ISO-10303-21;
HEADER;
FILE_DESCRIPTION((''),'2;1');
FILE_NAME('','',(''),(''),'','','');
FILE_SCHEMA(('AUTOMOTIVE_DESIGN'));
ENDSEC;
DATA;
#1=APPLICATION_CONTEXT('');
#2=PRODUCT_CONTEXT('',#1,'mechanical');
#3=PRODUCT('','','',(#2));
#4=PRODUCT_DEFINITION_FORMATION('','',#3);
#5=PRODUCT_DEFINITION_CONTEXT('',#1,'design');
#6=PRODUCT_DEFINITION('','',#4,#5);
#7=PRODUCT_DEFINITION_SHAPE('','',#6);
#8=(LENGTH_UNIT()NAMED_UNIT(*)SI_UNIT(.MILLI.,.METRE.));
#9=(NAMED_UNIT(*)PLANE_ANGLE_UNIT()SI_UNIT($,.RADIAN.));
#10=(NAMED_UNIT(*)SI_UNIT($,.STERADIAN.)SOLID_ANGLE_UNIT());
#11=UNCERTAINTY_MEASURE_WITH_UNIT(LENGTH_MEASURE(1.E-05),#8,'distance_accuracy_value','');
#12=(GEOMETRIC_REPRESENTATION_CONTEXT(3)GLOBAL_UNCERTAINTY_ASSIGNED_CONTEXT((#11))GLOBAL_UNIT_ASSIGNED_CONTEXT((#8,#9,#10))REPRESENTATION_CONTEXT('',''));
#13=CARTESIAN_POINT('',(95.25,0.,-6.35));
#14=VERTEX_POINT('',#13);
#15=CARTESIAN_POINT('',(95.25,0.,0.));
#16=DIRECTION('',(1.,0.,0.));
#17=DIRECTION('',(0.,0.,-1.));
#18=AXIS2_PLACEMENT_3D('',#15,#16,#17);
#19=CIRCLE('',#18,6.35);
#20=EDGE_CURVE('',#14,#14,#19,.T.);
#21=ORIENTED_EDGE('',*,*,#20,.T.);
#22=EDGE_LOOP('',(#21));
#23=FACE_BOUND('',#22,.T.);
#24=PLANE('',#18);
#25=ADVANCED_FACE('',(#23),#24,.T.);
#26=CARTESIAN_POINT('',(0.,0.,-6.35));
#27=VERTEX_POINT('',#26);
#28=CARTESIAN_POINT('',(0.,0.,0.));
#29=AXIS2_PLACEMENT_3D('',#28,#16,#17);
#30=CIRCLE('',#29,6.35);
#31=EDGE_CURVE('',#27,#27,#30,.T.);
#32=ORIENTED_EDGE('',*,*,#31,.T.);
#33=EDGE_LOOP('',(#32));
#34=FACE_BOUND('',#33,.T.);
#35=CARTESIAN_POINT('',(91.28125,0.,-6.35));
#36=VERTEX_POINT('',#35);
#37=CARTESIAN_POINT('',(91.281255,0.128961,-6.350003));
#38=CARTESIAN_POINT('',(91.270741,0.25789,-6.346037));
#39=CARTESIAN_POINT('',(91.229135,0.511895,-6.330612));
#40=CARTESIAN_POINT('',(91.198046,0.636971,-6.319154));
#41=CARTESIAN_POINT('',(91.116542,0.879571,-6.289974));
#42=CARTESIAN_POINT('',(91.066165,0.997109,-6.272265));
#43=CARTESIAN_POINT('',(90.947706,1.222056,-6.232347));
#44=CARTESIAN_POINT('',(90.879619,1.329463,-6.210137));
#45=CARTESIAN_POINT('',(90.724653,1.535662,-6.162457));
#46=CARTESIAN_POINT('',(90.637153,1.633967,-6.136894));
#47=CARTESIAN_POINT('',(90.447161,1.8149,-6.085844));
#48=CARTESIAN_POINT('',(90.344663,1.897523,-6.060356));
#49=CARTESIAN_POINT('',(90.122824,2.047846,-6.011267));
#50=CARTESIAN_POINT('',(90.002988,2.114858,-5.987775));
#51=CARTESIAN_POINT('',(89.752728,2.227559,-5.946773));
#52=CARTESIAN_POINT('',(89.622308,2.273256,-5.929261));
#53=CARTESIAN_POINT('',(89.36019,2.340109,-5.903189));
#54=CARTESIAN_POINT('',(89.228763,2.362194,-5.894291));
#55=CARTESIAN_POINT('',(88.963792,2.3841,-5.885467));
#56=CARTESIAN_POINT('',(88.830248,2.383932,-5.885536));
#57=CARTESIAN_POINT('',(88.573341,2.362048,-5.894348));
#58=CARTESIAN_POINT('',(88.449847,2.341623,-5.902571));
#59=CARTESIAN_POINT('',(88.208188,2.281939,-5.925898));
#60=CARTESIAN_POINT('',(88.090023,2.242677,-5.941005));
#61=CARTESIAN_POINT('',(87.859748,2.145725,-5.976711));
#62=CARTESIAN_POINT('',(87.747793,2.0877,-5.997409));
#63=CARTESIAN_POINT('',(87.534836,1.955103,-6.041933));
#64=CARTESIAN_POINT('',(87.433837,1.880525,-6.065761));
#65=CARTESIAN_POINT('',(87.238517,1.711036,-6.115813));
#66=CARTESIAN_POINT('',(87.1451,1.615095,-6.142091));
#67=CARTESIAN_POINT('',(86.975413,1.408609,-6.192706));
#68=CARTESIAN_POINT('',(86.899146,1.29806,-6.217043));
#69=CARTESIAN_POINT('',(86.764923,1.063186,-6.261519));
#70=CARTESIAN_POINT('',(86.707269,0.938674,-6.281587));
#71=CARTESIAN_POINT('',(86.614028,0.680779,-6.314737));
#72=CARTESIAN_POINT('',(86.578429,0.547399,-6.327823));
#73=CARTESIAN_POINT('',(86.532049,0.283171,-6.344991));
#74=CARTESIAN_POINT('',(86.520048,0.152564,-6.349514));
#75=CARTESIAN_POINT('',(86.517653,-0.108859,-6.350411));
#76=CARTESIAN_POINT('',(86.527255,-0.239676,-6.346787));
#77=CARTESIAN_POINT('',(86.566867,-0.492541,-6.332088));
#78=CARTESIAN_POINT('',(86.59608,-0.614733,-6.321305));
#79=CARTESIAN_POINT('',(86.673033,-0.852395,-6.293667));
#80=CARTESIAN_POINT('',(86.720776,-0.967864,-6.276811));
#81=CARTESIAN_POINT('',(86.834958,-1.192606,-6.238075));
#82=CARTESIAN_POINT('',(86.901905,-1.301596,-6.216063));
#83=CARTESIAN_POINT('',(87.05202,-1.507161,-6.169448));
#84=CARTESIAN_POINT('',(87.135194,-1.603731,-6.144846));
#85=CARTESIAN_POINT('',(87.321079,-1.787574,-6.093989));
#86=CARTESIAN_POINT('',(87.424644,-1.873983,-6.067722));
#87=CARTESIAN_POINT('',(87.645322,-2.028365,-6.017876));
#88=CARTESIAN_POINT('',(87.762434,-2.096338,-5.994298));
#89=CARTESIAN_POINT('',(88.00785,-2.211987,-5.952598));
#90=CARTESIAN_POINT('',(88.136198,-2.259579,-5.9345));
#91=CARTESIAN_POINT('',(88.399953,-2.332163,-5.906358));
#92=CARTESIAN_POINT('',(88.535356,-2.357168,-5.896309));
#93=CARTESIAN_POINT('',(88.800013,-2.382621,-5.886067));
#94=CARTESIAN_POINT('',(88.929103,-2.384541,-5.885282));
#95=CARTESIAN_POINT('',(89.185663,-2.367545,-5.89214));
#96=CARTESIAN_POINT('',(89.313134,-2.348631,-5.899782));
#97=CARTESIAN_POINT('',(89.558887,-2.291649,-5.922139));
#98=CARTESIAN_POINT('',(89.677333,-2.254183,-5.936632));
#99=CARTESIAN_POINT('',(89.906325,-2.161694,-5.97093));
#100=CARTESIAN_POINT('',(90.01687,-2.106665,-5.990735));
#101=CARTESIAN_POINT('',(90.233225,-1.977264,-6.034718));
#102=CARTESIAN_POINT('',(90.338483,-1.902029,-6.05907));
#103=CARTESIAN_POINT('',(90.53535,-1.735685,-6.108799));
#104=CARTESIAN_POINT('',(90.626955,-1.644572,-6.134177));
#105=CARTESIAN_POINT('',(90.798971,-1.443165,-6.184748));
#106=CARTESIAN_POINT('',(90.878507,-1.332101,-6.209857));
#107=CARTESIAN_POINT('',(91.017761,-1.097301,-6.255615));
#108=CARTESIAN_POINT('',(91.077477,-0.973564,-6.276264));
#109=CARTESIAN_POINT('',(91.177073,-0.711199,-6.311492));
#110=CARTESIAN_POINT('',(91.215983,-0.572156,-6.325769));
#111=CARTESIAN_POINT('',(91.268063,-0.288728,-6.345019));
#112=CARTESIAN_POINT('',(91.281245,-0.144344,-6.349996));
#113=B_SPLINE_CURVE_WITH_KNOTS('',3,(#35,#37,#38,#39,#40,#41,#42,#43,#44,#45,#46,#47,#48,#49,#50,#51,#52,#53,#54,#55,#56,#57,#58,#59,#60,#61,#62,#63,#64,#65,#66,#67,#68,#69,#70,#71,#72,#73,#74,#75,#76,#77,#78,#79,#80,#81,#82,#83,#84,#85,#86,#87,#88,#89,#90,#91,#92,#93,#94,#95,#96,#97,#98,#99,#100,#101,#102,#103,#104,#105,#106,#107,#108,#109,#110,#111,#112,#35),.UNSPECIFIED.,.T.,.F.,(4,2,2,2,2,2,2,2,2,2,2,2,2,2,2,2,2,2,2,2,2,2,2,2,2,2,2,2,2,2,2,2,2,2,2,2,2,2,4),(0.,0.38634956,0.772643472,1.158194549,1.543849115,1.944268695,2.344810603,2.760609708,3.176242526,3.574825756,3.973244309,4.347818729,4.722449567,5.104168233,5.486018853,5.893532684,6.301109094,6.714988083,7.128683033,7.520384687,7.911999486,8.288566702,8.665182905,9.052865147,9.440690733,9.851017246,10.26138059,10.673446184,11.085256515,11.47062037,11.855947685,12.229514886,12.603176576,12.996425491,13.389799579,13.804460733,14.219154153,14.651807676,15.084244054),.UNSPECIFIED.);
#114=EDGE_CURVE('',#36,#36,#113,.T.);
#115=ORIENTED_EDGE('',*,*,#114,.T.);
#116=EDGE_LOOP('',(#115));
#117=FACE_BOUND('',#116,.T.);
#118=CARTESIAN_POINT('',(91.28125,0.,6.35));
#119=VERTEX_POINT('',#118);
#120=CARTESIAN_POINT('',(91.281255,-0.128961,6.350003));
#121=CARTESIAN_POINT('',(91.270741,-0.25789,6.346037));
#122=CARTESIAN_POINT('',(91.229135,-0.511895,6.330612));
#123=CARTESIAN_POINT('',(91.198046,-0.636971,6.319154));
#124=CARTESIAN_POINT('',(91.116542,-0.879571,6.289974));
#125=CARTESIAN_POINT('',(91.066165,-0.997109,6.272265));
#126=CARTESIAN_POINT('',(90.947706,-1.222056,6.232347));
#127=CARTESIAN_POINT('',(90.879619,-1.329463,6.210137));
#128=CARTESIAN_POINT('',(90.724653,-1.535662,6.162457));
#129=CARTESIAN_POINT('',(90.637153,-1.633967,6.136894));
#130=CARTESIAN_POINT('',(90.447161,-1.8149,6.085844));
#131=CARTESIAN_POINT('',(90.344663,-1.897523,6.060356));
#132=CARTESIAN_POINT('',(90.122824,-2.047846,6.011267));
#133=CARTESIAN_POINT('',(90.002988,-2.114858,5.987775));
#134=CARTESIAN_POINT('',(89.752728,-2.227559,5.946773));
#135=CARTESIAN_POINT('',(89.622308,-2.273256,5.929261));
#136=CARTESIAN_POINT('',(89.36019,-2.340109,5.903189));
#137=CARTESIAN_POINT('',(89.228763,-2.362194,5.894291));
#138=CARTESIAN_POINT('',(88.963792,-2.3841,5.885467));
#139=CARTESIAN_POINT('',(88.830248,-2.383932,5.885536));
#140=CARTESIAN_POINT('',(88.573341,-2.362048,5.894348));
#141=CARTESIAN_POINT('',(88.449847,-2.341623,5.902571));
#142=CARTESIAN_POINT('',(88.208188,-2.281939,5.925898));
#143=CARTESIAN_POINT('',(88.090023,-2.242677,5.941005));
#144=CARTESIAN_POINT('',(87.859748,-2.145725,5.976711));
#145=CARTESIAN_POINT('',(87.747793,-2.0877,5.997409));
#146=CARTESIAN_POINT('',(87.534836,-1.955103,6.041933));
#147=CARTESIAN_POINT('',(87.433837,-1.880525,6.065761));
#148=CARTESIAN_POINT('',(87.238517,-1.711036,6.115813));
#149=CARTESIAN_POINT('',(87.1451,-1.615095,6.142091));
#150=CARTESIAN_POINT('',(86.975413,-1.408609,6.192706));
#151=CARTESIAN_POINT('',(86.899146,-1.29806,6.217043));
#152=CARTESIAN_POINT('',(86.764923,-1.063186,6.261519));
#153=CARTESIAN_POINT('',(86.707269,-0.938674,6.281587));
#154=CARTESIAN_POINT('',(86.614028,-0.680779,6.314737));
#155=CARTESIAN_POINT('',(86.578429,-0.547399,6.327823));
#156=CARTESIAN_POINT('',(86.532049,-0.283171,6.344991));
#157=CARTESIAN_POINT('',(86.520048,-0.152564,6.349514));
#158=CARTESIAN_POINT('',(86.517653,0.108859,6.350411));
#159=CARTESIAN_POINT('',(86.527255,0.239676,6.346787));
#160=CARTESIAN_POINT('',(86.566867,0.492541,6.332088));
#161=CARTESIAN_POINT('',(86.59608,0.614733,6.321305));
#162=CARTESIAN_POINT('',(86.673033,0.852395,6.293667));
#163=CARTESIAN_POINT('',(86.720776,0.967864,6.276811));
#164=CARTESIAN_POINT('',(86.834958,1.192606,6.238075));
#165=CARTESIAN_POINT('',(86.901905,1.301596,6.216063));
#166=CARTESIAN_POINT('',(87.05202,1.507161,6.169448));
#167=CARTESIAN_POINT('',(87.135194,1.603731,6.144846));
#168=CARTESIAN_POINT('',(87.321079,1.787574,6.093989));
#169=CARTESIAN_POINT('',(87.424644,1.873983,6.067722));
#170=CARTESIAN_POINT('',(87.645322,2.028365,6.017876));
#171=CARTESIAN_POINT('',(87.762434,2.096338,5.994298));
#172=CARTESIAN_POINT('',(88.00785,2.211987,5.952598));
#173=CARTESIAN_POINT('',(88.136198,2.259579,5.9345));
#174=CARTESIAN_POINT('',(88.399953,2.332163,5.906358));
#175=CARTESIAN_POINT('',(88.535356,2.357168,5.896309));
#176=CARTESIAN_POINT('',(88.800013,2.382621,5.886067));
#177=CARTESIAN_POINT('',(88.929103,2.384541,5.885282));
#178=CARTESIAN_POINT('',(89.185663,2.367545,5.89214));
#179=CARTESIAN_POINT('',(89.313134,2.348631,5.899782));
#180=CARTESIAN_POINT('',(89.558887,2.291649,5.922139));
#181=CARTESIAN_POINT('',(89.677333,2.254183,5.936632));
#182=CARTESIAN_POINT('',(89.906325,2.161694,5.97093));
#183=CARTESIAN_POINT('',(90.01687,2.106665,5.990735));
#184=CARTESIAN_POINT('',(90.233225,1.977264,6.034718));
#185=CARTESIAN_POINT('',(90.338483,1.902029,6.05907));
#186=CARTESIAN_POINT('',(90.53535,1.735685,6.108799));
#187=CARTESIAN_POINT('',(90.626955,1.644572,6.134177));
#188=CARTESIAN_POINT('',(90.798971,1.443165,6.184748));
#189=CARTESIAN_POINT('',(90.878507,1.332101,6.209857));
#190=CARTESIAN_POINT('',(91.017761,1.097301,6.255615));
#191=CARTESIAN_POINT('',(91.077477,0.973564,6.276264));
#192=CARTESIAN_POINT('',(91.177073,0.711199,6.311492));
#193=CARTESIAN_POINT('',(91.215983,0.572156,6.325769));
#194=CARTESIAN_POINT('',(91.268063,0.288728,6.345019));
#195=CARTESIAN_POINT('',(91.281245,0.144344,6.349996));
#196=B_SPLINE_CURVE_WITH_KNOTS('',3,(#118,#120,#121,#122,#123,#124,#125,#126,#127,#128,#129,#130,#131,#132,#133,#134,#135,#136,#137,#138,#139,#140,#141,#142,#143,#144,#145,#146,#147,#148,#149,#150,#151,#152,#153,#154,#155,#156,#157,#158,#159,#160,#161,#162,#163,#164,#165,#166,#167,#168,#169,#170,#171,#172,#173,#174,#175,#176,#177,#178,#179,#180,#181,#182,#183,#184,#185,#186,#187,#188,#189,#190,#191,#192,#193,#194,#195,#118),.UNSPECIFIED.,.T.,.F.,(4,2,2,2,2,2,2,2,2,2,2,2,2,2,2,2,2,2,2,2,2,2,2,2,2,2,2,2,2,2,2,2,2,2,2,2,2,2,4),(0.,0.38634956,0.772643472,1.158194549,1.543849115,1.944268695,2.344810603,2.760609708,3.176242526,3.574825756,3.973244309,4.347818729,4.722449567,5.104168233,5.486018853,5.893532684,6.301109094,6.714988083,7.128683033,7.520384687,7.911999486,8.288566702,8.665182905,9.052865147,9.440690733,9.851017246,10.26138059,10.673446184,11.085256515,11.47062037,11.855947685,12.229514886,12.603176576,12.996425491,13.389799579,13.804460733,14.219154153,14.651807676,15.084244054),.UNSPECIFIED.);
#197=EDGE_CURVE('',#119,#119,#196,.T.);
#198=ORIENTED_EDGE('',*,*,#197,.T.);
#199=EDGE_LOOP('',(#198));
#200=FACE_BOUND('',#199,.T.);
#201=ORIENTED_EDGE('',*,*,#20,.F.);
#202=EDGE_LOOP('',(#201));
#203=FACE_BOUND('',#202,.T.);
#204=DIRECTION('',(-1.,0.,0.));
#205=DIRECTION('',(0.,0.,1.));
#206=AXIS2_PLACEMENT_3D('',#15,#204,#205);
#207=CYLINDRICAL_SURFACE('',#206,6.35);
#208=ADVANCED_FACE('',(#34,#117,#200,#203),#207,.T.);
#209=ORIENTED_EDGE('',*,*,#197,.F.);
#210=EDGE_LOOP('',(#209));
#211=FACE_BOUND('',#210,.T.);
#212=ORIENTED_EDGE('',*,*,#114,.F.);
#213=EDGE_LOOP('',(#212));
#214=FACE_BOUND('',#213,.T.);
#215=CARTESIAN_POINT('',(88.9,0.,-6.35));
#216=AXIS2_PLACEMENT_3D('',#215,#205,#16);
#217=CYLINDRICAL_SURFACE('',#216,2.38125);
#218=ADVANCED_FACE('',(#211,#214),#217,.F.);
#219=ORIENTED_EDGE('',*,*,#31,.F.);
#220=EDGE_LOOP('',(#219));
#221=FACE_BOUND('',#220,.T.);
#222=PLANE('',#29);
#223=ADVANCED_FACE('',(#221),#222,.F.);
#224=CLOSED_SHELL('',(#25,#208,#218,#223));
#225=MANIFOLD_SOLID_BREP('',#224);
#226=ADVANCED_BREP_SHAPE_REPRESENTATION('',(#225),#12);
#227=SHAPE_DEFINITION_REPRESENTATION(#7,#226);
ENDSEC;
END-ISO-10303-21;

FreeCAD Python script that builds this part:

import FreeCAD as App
import Part
import Sketcher
Q = App.Units.Quantity

doc = App.newDocument("Part")
params = doc.addObject("Spreadsheet::Sheet", "Params")
for row, (alias, value) in enumerate([
    ("sketch1_diameter", "0.5 in"),
    ("pad1_length", "3.75 in"),
    ("sketch2_diameter", "0.1875 in"),
], start=1):
    params.set(f"A{row}", alias)
    params.set(f"B{row}", "=" + value)
    params.setAlias(f"B{row}", alias)

body = doc.addObject("PartDesign::Body", "Body")

sketch1 = body.newObject("Sketcher::SketchObject", "Sketch")
sketch1.AttachmentSupport = (doc.getObject("YZ_Plane"), [""])
sketch1.MapMode = "FlatFace"
sketch1.addGeometry(Part.Circle(App.Vector(0, 0, 0), App.Vector(0, 0, 1), 6), False)
sketch1.addConstraint([
    Sketcher.Constraint("Coincident", 0, 3, -1, 1),
    Sketcher.Constraint("Diameter", 0, Q("0.5 in")),
])
sketch1.setExpression("Constraints[1]", "Params.sketch1_diameter")
pad1 = body.newObject("PartDesign::Pad", "Pad")
pad1.Profile = sketch1
pad1.setExpression("Length", "Params.pad1_length")

sketch2 = body.newObject("Sketcher::SketchObject", "Sketch001")
sketch2.AttachmentSupport = (doc.getObject("XY_Plane"), [""])
sketch2.MapMode = "FlatFace"
sketch2.addGeometry(Part.Circle(App.Vector(88.9, 0, 0), App.Vector(0, 0, 1), 2.4), False)
sketch2.addConstraint([
    Sketcher.Constraint("PointOnObject", 0, 3, -1),
    Sketcher.Constraint("Diameter", 0, Q("0.1875 in")),
    Sketcher.Constraint("DistanceX", -1, 1, 0, 3, Q("3.5 in")),
])
sketch2.setExpression("Constraints[1]", "Params.sketch2_diameter")
pocket1 = body.newObject("PartDesign::Pocket", "Pocket")
pocket1.Profile = sketch2
pocket1.Type = "ThroughAll"
pocket1.Midplane = True

doc.recompute()
